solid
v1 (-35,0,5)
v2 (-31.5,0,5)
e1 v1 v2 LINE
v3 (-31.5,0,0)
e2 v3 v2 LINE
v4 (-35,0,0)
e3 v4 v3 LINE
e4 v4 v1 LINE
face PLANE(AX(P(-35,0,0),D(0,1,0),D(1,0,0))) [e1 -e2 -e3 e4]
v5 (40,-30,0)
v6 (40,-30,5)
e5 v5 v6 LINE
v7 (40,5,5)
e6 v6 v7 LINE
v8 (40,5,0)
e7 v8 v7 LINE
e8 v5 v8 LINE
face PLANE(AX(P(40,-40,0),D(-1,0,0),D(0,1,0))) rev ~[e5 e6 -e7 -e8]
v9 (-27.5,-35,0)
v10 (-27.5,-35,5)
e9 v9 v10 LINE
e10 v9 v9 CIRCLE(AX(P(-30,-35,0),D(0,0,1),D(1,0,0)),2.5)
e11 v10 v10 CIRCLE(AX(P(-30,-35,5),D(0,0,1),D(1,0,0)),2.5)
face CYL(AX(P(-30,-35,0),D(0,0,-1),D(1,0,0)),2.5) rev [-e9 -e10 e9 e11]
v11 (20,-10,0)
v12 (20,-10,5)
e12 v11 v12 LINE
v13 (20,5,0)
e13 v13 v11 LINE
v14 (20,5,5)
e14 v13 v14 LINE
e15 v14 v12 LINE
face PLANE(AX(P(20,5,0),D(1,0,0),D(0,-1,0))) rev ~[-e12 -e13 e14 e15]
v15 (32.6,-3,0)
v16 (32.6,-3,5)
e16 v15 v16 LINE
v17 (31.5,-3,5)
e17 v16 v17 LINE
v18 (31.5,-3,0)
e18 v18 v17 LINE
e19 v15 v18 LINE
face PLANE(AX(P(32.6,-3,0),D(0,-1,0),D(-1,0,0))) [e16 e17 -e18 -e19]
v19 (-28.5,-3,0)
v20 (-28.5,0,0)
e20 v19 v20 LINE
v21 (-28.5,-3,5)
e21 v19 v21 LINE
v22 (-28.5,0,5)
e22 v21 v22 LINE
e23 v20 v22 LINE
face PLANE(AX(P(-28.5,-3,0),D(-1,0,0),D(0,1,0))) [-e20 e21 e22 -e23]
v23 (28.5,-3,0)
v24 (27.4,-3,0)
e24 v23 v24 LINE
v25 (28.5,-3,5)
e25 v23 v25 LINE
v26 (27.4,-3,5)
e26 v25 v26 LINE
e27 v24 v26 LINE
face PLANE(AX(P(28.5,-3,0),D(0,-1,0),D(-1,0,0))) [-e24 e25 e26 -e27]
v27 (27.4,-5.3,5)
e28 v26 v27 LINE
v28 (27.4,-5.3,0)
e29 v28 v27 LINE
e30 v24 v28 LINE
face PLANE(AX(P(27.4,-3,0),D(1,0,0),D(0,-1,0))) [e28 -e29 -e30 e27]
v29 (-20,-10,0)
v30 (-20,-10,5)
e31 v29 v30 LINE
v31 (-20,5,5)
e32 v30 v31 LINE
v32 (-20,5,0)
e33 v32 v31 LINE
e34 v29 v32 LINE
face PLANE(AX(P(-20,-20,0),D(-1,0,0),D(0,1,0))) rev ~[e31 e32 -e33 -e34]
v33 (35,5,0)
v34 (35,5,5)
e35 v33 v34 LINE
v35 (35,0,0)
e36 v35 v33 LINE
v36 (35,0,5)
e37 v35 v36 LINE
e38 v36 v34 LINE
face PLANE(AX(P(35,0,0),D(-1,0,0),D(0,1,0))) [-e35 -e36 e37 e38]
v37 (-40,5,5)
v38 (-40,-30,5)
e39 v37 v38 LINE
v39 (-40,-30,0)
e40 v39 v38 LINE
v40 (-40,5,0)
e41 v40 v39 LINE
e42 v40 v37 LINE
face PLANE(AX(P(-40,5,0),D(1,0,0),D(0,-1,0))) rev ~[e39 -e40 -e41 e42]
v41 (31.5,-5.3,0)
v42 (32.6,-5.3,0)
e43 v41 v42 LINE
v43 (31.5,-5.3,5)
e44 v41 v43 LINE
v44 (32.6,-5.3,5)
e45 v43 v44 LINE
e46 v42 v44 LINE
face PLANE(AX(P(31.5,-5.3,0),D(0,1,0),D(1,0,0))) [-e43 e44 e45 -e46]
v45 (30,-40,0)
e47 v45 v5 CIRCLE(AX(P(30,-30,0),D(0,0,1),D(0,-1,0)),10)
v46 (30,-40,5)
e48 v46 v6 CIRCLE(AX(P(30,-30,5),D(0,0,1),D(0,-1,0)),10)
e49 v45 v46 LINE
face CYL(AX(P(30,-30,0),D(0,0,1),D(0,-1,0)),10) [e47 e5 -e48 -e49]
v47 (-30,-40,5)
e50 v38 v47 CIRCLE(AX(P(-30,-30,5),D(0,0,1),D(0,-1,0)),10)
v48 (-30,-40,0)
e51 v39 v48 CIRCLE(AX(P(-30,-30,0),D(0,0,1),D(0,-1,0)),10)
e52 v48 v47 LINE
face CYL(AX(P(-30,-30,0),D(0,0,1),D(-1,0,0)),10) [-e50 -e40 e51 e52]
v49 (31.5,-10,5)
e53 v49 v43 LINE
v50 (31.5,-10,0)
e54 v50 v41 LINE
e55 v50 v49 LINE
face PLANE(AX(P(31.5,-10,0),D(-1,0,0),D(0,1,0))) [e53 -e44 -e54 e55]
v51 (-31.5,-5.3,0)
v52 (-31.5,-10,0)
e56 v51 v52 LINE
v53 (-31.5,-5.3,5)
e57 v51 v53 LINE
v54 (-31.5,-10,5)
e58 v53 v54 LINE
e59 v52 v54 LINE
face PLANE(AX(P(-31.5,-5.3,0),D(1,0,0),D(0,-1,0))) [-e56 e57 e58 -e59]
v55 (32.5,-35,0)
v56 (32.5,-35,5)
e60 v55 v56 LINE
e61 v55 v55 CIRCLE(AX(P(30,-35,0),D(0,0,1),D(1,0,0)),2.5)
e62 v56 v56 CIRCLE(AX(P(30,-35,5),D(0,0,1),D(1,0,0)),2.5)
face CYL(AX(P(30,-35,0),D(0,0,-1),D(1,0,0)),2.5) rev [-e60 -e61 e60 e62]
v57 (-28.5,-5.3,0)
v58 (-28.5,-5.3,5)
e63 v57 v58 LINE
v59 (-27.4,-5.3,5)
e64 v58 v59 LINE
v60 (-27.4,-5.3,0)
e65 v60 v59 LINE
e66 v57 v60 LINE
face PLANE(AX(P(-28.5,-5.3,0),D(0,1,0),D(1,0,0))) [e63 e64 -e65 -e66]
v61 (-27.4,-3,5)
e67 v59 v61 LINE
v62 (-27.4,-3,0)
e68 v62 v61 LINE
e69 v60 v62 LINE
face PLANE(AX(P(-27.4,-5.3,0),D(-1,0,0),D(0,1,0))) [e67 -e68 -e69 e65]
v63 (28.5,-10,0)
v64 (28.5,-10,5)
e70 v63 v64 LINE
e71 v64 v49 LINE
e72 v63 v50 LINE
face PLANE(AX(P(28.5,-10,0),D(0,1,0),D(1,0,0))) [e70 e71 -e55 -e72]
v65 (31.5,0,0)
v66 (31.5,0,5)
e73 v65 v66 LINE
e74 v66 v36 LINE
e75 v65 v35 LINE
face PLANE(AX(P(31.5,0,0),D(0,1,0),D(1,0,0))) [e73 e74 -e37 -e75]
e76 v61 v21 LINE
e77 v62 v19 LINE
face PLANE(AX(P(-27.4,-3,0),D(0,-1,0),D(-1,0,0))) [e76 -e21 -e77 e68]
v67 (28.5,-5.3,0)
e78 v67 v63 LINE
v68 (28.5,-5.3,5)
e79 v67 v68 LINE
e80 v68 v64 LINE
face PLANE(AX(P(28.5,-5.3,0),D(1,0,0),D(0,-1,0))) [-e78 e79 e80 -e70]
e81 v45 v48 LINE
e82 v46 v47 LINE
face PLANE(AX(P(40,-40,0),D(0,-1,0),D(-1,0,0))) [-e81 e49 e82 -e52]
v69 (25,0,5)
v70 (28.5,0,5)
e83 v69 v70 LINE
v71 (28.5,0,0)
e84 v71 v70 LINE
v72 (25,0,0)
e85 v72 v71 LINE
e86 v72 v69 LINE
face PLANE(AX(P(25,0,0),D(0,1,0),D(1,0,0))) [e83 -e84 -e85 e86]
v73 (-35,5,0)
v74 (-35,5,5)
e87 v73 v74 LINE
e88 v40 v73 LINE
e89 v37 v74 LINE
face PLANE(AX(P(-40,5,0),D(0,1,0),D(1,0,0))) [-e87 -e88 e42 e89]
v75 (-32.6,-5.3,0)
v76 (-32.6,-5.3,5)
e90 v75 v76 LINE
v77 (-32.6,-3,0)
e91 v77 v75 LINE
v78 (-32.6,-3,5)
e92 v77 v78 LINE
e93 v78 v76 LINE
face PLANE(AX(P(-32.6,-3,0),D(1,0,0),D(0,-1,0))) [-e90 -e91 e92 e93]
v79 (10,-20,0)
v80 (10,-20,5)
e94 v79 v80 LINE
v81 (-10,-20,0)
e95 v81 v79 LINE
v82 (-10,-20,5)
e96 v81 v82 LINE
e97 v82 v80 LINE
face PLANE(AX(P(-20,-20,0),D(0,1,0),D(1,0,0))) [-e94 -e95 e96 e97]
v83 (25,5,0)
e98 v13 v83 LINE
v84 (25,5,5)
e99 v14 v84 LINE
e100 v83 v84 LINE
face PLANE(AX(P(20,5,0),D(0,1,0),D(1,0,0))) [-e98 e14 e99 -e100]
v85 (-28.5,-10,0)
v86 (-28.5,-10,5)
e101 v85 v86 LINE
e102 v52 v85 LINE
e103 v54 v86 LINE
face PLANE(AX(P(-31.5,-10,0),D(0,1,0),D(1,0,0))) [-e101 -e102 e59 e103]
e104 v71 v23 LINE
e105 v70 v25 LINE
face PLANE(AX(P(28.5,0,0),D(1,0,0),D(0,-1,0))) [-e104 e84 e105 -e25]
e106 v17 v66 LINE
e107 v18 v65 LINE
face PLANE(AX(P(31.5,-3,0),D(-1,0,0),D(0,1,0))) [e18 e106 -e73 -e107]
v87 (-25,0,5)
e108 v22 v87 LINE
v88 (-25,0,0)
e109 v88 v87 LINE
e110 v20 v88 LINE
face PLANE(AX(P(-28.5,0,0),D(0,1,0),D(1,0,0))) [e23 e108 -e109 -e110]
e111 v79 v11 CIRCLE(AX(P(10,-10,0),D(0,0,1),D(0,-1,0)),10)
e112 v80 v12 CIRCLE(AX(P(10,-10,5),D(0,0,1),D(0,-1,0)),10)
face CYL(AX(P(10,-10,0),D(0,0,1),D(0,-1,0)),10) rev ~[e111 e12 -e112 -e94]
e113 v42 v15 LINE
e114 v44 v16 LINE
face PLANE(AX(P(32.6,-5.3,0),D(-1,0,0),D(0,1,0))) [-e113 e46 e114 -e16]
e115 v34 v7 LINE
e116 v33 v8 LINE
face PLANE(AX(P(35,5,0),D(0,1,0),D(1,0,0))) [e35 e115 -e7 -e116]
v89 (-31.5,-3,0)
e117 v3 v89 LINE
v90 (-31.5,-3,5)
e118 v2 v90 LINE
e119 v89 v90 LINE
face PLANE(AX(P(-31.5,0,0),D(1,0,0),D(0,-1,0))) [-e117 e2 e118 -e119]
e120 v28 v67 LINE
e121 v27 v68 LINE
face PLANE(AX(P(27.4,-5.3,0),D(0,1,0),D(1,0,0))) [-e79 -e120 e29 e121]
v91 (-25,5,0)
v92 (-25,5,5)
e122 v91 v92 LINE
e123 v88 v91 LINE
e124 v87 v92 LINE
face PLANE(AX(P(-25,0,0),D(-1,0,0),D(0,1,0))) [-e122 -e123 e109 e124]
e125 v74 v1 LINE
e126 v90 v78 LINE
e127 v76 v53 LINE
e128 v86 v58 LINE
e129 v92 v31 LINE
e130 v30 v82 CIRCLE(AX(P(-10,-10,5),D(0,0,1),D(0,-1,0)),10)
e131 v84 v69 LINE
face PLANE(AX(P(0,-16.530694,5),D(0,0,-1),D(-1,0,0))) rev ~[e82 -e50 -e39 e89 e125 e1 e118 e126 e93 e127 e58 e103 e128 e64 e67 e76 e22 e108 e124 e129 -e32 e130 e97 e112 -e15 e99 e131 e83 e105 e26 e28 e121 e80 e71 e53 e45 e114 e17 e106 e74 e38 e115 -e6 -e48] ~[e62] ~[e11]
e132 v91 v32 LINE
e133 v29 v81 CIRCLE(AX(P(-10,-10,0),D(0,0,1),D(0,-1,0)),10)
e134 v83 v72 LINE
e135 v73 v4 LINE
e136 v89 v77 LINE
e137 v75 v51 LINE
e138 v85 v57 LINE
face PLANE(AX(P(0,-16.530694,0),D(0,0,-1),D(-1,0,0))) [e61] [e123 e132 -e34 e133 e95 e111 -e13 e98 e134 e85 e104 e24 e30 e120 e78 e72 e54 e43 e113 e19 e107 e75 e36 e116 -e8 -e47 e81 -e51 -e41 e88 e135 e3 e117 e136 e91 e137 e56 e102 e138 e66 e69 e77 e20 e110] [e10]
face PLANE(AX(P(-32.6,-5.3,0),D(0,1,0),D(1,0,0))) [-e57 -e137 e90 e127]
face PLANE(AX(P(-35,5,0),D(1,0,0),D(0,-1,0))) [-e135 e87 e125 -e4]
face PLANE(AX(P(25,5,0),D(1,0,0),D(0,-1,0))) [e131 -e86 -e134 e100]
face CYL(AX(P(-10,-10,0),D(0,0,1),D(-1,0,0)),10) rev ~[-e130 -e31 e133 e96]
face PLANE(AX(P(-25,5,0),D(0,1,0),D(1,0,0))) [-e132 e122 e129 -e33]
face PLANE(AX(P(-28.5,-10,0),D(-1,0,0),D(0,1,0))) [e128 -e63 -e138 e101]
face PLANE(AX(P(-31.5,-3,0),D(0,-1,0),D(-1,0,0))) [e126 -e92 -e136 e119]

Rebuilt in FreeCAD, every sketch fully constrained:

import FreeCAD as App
import Part
import Sketcher

V = App.Vector
Q = App.Units.Quantity


def edges_at(feature, points):
    """Names of the edges that pass closest to the given points."""
    edges = feature.Shape.Edges
    near = lambda p: min(range(len(edges)), key=lambda i: edges[i].distToShape(Part.Vertex(*p))[0])
    return sorted({f"Edge{near(p) + 1}" for p in points})


def add_polygon(sketch, points):
    """Adds a closed chain of lines whose ends are joined by coincident constraints."""
    first, n = sketch.GeometryCount, len(points)
    for a, b in zip(points, points[1:] + points[:1]):
        sketch.addGeometry(Part.LineSegment(App.Vector(*a, 0), App.Vector(*b, 0)), False)
    for i in range(n):
        sketch.addConstraint(Sketcher.Constraint("Coincident", first + i, 2, first + (i + 1) % n, 1))

doc = App.newDocument("Part")
body = doc.addObject("PartDesign::Body", "Body")

# Sketch on XY plane
sketch1 = body.newObject("Sketcher::SketchObject", "Sketch")
sketch1.AttachmentSupport = (doc.getObject("XY_Plane"), [""])
sketch1.MapMode = "FlatFace"
add_polygon(sketch1, [(-32.6, -3), (-31.5, -3), (-31.5, 0), (-35, 0), (-35, 5), (-40, 5), (-40, -40), (40, -40), (40, 5), (35, 5), (35, 0), (31.5, 0), (31.5, -3), (32.6, -3), (32.6, -5.3), (31.5, -5.3), (31.5, -10), (28.5, -10), (28.5, -5.3), (27.4, -5.3), (27.4, -3), (28.5, -3), (28.5, 0), (25, 0), (25, 5), (20, 5), (20, -20), (-20, -20), (-20, 5), (-25, 5), (-25, 0), (-28.5, 0), (-28.5, -3), (-27.4, -3), (-27.4, -5.3), (-28.5, -5.3), (-28.5, -10), (-31.5, -10), (-31.5, -5.3), (-32.6, -5.3)])  # lines 0-39
sketch1.addGeometry(Part.Circle(V(30, -35, 0), V(0, 0, 1), 2.5), False)  # 40
sketch1.addGeometry(Part.Circle(V(-30, -35, 0), V(0, 0, 1), 2.5), False)  # 41
sketch1.addConstraint([
    Sketcher.Constraint("Horizontal", 0),
    Sketcher.Constraint("Vertical", 1),
    Sketcher.Constraint("Horizontal", 2),
    Sketcher.Constraint("Vertical", 3),
    Sketcher.Constraint("Horizontal", 4),
    Sketcher.Constraint("Vertical", 5),
    Sketcher.Constraint("Horizontal", 6),
    Sketcher.Constraint("Vertical", 7),
    Sketcher.Constraint("Horizontal", 8),
    Sketcher.Constraint("Vertical", 9),
    Sketcher.Constraint("Horizontal", 10),
    Sketcher.Constraint("Vertical", 11),
    Sketcher.Constraint("Horizontal", 12),
    Sketcher.Constraint("Vertical", 13),
    Sketcher.Constraint("Horizontal", 14),
    Sketcher.Constraint("Vertical", 15),
    Sketcher.Constraint("Horizontal", 16),
    Sketcher.Constraint("Vertical", 17),
    Sketcher.Constraint("Horizontal", 18),
    Sketcher.Constraint("Vertical", 19),
    Sketcher.Constraint("Horizontal", 20),
    Sketcher.Constraint("Vertical", 21),
    Sketcher.Constraint("Horizontal", 22),
    Sketcher.Constraint("Vertical", 23),
    Sketcher.Constraint("Horizontal", 24),
    Sketcher.Constraint("Vertical", 25),
    Sketcher.Constraint("Horizontal", 26),
    Sketcher.Constraint("Vertical", 27),
    Sketcher.Constraint("Horizontal", 28),
    Sketcher.Constraint("Vertical", 29),
    Sketcher.Constraint("Horizontal", 30),
    Sketcher.Constraint("Vertical", 31),
    Sketcher.Constraint("Horizontal", 32),
    Sketcher.Constraint("Vertical", 33),
    Sketcher.Constraint("Horizontal", 34),
    Sketcher.Constraint("Vertical", 35),
    Sketcher.Constraint("Horizontal", 36),
    Sketcher.Constraint("Vertical", 37),
    Sketcher.Constraint("Horizontal", 38),
    Sketcher.Constraint("Vertical", 39),
    Sketcher.Constraint("Equal", 40, 41),
    Sketcher.Constraint("Symmetric", 2, 2, 9, 2, -1, 1),
    Sketcher.Constraint("Symmetric", 22, 2, 29, 2, -1, 1),
    Sketcher.Constraint("Symmetric", 40, 3, 41, 3, -2),
    Sketcher.Constraint("Symmetric", 4, 2, 7, 2, -2),
    Sketcher.Constraint("Symmetric", 1, 2, 10, 2, -2),
    Sketcher.Constraint("Symmetric", 24, 2, 27, 2, -2),
    Sketcher.Constraint("Symmetric", 21, 2, 30, 2, -2),
    Sketcher.Constraint("Symmetric", 19, 2, 32, 2, -2),
    Sketcher.Constraint("Symmetric", 17, 2, 34, 2, -2),
    Sketcher.Constraint("Symmetric", 15, 2, 36, 2, -2),
    Sketcher.Constraint("Symmetric", 13, 2, 38, 2, -2),
    Sketcher.Constraint("Horizontal", 0, 2, 11, 2),
    Sketcher.Constraint("Horizontal", 14, 2, 17, 2),
    Sketcher.Constraint("Horizontal", 12, 2, 19, 2),
    Sketcher.Constraint("Horizontal", 8, 2, 23, 2),
    Sketcher.Constraint("Vertical", 11, 2, 14, 2),
    Sketcher.Constraint("Vertical", 17, 2, 20, 2),
    Sketcher.Constraint("Equal", 14, 18),
    Sketcher.Constraint("Equal", 10, 22),
    Sketcher.Constraint("Equal", 8, 24),
    Sketcher.Constraint("Equal", 36, 1),
    Sketcher.Constraint("Equal", 28, 3),
    Sketcher.Constraint("Diameter", 40, Q("5 mm")),
    Sketcher.Constraint("DistanceX", 4, 2, 4, 1, Q("5 mm")),
    Sketcher.Constraint("DistanceX", 6, 1, 6, 2, Q("80 mm")),
    Sketcher.Constraint("DistanceX", 16, 2, 16, 1, Q("3 mm")),
    Sketcher.Constraint("DistanceX", 26, 2, 26, 1, Q("40 mm")),
    Sketcher.Constraint("DistanceY", 5, 2, 5, 1, Q("45 mm")),
    Sketcher.Constraint("DistanceY", 25, 2, 25, 1, Q("25 mm")),
    Sketcher.Constraint("DistanceX", 0, 1, 0, 2, Q("1.1 mm")),
    Sketcher.Constraint("DistanceY", 13, 2, 13, 1, Q("2.3 mm")),
    Sketcher.Constraint("DistanceY", 15, 2, 15, 1, Q("4.7 mm")),
    Sketcher.Constraint("DistanceX", -1, 1, 40, 3, Q("30 mm")),
    Sketcher.Constraint("DistanceY", 40, 3, -1, 1, Q("35 mm")),
])
pad1 = body.newObject("PartDesign::Pad", "Pad")
pad1.Profile = sketch1
pad1.Length = 5
doc.recompute()

fillet = body.newObject("PartDesign::Fillet", "Fillet")
fillet.Base = (pad1, edges_at(pad1, [
    (-20, -20, 2.5),
    (20, -20, 2.5),
    (40, -40, 2.5),
    (-40, -40, 2.5),
]))
fillet.Radius = 10

doc.recompute()
